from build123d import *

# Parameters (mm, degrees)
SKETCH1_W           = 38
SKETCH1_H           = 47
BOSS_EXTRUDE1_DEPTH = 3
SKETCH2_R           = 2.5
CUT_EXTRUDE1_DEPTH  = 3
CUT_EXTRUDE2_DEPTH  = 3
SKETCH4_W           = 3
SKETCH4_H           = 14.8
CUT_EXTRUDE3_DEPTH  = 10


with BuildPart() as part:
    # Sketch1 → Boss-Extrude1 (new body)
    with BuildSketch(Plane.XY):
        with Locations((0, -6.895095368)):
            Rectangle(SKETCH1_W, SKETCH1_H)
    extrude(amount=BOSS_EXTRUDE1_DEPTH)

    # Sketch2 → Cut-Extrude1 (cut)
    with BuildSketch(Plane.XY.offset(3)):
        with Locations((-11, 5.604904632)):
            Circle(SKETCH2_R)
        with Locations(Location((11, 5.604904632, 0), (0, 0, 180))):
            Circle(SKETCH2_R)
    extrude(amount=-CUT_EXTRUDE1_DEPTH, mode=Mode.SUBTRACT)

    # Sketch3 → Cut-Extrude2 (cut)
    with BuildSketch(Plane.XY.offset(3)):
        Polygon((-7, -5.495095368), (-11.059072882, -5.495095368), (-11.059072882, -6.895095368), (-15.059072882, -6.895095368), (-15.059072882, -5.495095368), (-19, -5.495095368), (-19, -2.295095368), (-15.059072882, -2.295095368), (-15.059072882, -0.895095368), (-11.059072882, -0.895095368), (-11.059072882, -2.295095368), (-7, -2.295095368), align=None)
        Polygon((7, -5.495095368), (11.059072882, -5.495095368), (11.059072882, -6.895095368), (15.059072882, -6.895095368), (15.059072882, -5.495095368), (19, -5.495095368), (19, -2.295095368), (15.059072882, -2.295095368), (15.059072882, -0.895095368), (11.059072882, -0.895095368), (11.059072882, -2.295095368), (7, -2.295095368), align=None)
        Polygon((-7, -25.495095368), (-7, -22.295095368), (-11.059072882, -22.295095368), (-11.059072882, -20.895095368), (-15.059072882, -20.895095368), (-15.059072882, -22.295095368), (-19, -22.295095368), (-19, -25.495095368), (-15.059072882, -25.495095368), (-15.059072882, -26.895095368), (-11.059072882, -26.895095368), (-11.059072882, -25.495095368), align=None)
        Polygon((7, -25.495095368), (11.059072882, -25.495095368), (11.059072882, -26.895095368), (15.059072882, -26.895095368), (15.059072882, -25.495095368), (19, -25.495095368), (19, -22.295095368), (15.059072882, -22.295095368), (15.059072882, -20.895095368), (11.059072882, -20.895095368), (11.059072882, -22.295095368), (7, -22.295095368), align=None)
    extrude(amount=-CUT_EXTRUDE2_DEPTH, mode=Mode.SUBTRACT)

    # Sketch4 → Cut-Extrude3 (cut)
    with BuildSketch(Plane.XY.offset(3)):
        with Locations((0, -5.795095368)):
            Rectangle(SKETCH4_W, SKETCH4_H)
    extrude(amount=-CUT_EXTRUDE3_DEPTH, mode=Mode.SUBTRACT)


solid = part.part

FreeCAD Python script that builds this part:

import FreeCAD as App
import Part
import Sketcher
from FreeCAD import Vector

doc = App.newDocument("Part")
body = doc.addObject("PartDesign::Body", "Body")

# Sketch on XY plane
sketch1 = doc.addObject("Sketcher::SketchObject", "Sketch")
body.addObject(sketch1)
sketch1.AttachmentSupport = (doc.XY_Plane, [""])
sketch1.MapMode = "FlatFace"
sketch1.addGeometry(Part.LineSegment(Vector(-19, 17, 0), Vector(-19, -30, 0)), False)
sketch1.addGeometry(Part.LineSegment(Vector(-19, -30, 0), Vector(19, -30, 0)), False)
sketch1.addGeometry(Part.LineSegment(Vector(19, -30, 0), Vector(19, 17, 0)), False)
sketch1.addGeometry(Part.LineSegment(Vector(19, 17, 0), Vector(-19, 17, 0)), False)
sketch1.addConstraint(Sketcher.Constraint("Coincident", 0, 2, 1, 1))
sketch1.addConstraint(Sketcher.Constraint("Coincident", 1, 2, 2, 1))
sketch1.addConstraint(Sketcher.Constraint("Coincident", 2, 2, 3, 1))
sketch1.addConstraint(Sketcher.Constraint("Coincident", 3, 2, 0, 1))
sketch1.addConstraint(Sketcher.Constraint("Vertical", 0))
sketch1.addConstraint(Sketcher.Constraint("Horizontal", 1))
sketch1.addConstraint(Sketcher.Constraint("Vertical", 2))
sketch1.addConstraint(Sketcher.Constraint("Horizontal", 3))
sketch1.addConstraint(Sketcher.Constraint("DistanceX", 1, 1, 1, 2, 38.0))
sketch1.addConstraint(Sketcher.Constraint("DistanceY", 0, 2, 0, 1, 47.0))
sketch1.addConstraint(Sketcher.Constraint("DistanceX", 0, 2, -1, 1, 19.0))
sketch1.addConstraint(Sketcher.Constraint("DistanceY", 0, 2, -1, 1, 30.395095))
pad1 = doc.addObject("PartDesign::Pad", "Pad")
body.addObject(pad1)
pad1.Profile = sketch1
pad1.Length = 3

# Sketch on XY plane
sketch2 = doc.addObject("Sketcher::SketchObject", "Sketch001")
body.addObject(sketch2)
sketch2.AttachmentSupport = (doc.XY_Plane, [""])
sketch2.MapMode = "FlatFace"
sketch2.AttachmentOffset = App.Placement(Vector(0, 0, 3), App.Rotation())
sketch2.addGeometry(Part.Circle(Vector(-11, 5.6, 0), Vector(0, 0, 1), 2.5), False)
sketch2.addGeometry(Part.Circle(Vector(11, 5.6, 0), Vector(0, 0, 1), 2.5), False)
sketch2.addConstraint(Sketcher.Constraint("Equal", 0, 1))
sketch2.addConstraint(Sketcher.Constraint("Symmetric", 0, 3, 1, 3, -2))
sketch2.addConstraint(Sketcher.Constraint("Diameter", 0, 5.0))
sketch2.addConstraint(Sketcher.Constraint("DistanceX", 0, 3, -1, 1, 11.0))
sketch2.addConstraint(Sketcher.Constraint("DistanceY", -1, 1, 0, 3, 5.604905))
pocket1 = doc.addObject("PartDesign::Pocket", "Pocket")
body.addObject(pocket1)
pocket1.Profile = sketch2
pocket1.Length = 3

# Sketch on XY plane
sketch3 = doc.addObject("Sketcher::SketchObject", "Sketch002")
body.addObject(sketch3)
sketch3.AttachmentSupport = (doc.XY_Plane, [""])
sketch3.MapMode = "FlatFace"
sketch3.AttachmentOffset = App.Placement(Vector(0, 0, 3), App.Rotation())
sketch3.addGeometry(Part.LineSegment(Vector(-11.1, -5.5, 0), Vector(-7, -5.5, 0)), False)
sketch3.addGeometry(Part.LineSegment(Vector(-7, -5.5, 0), Vector(-7, -2.3, 0)), False)
sketch3.addGeometry(Part.LineSegment(Vector(-7, -2.3, 0), Vector(-11.1, -2.3, 0)), False)
sketch3.addGeometry(Part.LineSegment(Vector(-11.1, -2.3, 0), Vector(-11.1, -0.9, 0)), False)
sketch3.addGeometry(Part.LineSegment(Vector(-11.1, -0.9, 0), Vector(-15.1, -0.9, 0)), False)
sketch3.addGeometry(Part.LineSegment(Vector(-15.1, -0.9, 0), Vector(-15.1, -2.3, 0)), False)
sketch3.addGeometry(Part.LineSegment(Vector(-15.1, -2.3, 0), Vector(-19, -2.3, 0)), False)
sketch3.addGeometry(Part.LineSegment(Vector(-19, -2.3, 0), Vector(-19, -5.5, 0)), False)
sketch3.addGeometry(Part.LineSegment(Vector(-19, -5.5, 0), Vector(-15.1, -5.5, 0)), False)
sketch3.addGeometry(Part.LineSegment(Vector(-15.1, -5.5, 0), Vector(-15.1, -6.9, 0)), False)
sketch3.addGeometry(Part.LineSegment(Vector(-15.1, -6.9, 0), Vector(-11.1, -6.9, 0)), False)
sketch3.addGeometry(Part.LineSegment(Vector(-11.1, -6.9, 0), Vector(-11.1, -5.5, 0)), False)
sketch3.addGeometry(Part.LineSegment(Vector(7, -5.5, 0), Vector(11.1, -5.5, 0)), False)
sketch3.addGeometry(Part.LineSegment(Vector(11.1, -5.5, 0), Vector(11.1, -6.9, 0)), False)
sketch3.addGeometry(Part.LineSegment(Vector(11.1, -6.9, 0), Vector(15.1, -6.9, 0)), False)
sketch3.addGeometry(Part.LineSegment(Vector(15.1, -6.9, 0), Vector(15.1, -5.5, 0)), False)
sketch3.addGeometry(Part.LineSegment(Vector(15.1, -5.5, 0), Vector(19, -5.5, 0)), False)
sketch3.addGeometry(Part.LineSegment(Vector(19, -5.5, 0), Vector(19, -2.3, 0)), False)
sketch3.addGeometry(Part.LineSegment(Vector(19, -2.3, 0), Vector(15.1, -2.3, 0)), False)
sketch3.addGeometry(Part.LineSegment(Vector(15.1, -2.3, 0), Vector(15.1, -0.9, 0)), False)
sketch3.addGeometry(Part.LineSegment(Vector(15.1, -0.9, 0), Vector(11.1, -0.9, 0)), False)
sketch3.addGeometry(Part.LineSegment(Vector(11.1, -0.9, 0), Vector(11.1, -2.3, 0)), False)
sketch3.addGeometry(Part.LineSegment(Vector(11.1, -2.3, 0), Vector(7, -2.3, 0)), False)
sketch3.addGeometry(Part.LineSegment(Vector(7, -2.3, 0), Vector(7, -5.5, 0)), False)
sketch3.addGeometry(Part.LineSegment(Vector(-7, -25.5, 0), Vector(-7, -22.3, 0)), False)
sketch3.addGeometry(Part.LineSegment(Vector(-7, -22.3, 0), Vector(-11.1, -22.3, 0)), False)
sketch3.addGeometry(Part.LineSegment(Vector(-11.1, -22.3, 0), Vector(-11.1, -20.9, 0)), False)
sketch3.addGeometry(Part.LineSegment(Vector(-11.1, -20.9, 0), Vector(-15.1, -20.9, 0)), False)
sketch3.addGeometry(Part.LineSegment(Vector(-15.1, -20.9, 0), Vector(-15.1, -22.3, 0)), False)
sketch3.addGeometry(Part.LineSegment(Vector(-15.1, -22.3, 0), Vector(-19, -22.3, 0)), False)
sketch3.addGeometry(Part.LineSegment(Vector(-19, -22.3, 0), Vector(-19, -25.5, 0)), False)
sketch3.addGeometry(Part.LineSegment(Vector(-19, -25.5, 0), Vector(-15.1, -25.5, 0)), False)
sketch3.addGeometry(Part.LineSegment(Vector(-15.1, -25.5, 0), Vector(-15.1, -26.9, 0)), False)
sketch3.addGeometry(Part.LineSegment(Vector(-15.1, -26.9, 0), Vector(-11.1, -26.9, 0)), False)
sketch3.addGeometry(Part.LineSegment(Vector(-11.1, -26.9, 0), Vector(-11.1, -25.5, 0)), False)
sketch3.addGeometry(Part.LineSegment(Vector(-11.1, -25.5, 0), Vector(-7, -25.5, 0)), False)
sketch3.addGeometry(Part.LineSegment(Vector(7, -25.5, 0), Vector(11.1, -25.5, 0)), False)
sketch3.addGeometry(Part.LineSegment(Vector(11.1, -25.5, 0), Vector(11.1, -26.9, 0)), False)
sketch3.addGeometry(Part.LineSegment(Vector(11.1, -26.9, 0), Vector(15.1, -26.9, 0)), False)
sketch3.addGeometry(Part.LineSegment(Vector(15.1, -26.9, 0), Vector(15.1, -25.5, 0)), False)
sketch3.addGeometry(Part.LineSegment(Vector(15.1, -25.5, 0), Vector(19, -25.5, 0)), False)
sketch3.addGeometry(Part.LineSegment(Vector(19, -25.5, 0), Vector(19, -22.3, 0)), False)
sketch3.addGeometry(Part.LineSegment(Vector(19, -22.3, 0), Vector(15.1, -22.3, 0)), False)
sketch3.addGeometry(Part.LineSegment(Vector(15.1, -22.3, 0), Vector(15.1, -20.9, 0)), False)
sketch3.addGeometry(Part.LineSegment(Vector(15.1, -20.9, 0), Vector(11.1, -20.9, 0)), False)
sketch3.addGeometry(Part.LineSegment(Vector(11.1, -20.9, 0), Vector(11.1, -22.3, 0)), False)
sketch3.addGeometry(Part.LineSegment(Vector(11.1, -22.3, 0), Vector(7, -22.3, 0)), False)
sketch3.addGeometry(Part.LineSegment(Vector(7, -22.3, 0), Vector(7, -25.5, 0)), False)
sketch3.addConstraint(Sketcher.Constraint("Coincident", 0, 2, 1, 1))
sketch3.addConstraint(Sketcher.Constraint("Coincident", 1, 2, 2, 1))
sketch3.addConstraint(Sketcher.Constraint("Coincident", 2, 2, 3, 1))
sketch3.addConstraint(Sketcher.Constraint("Coincident", 3, 2, 4, 1))
sketch3.addConstraint(Sketcher.Constraint("Coincident", 4, 2, 5, 1))
sketch3.addConstraint(Sketcher.Constraint("Coincident", 5, 2, 6, 1))
sketch3.addConstraint(Sketcher.Constraint("Coincident", 6, 2, 7, 1))
sketch3.addConstraint(Sketcher.Constraint("Coincident", 7, 2, 8, 1))
sketch3.addConstraint(Sketcher.Constraint("Coincident", 8, 2, 9, 1))
sketch3.addConstraint(Sketcher.Constraint("Coincident", 9, 2, 10, 1))
sketch3.addConstraint(Sketcher.Constraint("Coincident", 10, 2, 11, 1))
sketch3.addConstraint(Sketcher.Constraint("Coincident", 11, 2, 0, 1))
sketch3.addConstraint(Sketcher.Constraint("Coincident", 12, 2, 13, 1))
sketch3.addConstraint(Sketcher.Constraint("Coincident", 13, 2, 14, 1))
sketch3.addConstraint(Sketcher.Constraint("Coincident", 14, 2, 15, 1))
sketch3.addConstraint(Sketcher.Constraint("Coincident", 15, 2, 16, 1))
sketch3.addConstraint(Sketcher.Constraint("Coincident", 16, 2, 17, 1))
sketch3.addConstraint(Sketcher.Constraint("Coincident", 17, 2, 18, 1))
sketch3.addConstraint(Sketcher.Constraint("Coincident", 18, 2, 19, 1))
sketch3.addConstraint(Sketcher.Constraint("Coincident", 19, 2, 20, 1))
sketch3.addConstraint(Sketcher.Constraint("Coincident", 20, 2, 21, 1))
sketch3.addConstraint(Sketcher.Constraint("Coincident", 21, 2, 22, 1))
sketch3.addConstraint(Sketcher.Constraint("Coincident", 22, 2, 23, 1))
sketch3.addConstraint(Sketcher.Constraint("Coincident", 23, 2, 12, 1))
sketch3.addConstraint(Sketcher.Constraint("Coincident", 24, 2, 25, 1))
sketch3.addConstraint(Sketcher.Constraint("Coincident", 25, 2, 26, 1))
sketch3.addConstraint(Sketcher.Constraint("Coincident", 26, 2, 27, 1))
sketch3.addConstraint(Sketcher.Constraint("Coincident", 27, 2, 28, 1))
sketch3.addConstraint(Sketcher.Constraint("Coincident", 28, 2, 29, 1))
sketch3.addConstraint(Sketcher.Constraint("Coincident", 29, 2, 30, 1))
sketch3.addConstraint(Sketcher.Constraint("Coincident", 30, 2, 31, 1))
sketch3.addConstraint(Sketcher.Constraint("Coincident", 31, 2, 32, 1))
sketch3.addConstraint(Sketcher.Constraint("Coincident", 32, 2, 33, 1))
sketch3.addConstraint(Sketcher.Constraint("Coincident", 33, 2, 34, 1))
sketch3.addConstraint(Sketcher.Constraint("Coincident", 34, 2, 35, 1))
sketch3.addConstraint(Sketcher.Constraint("Coincident", 35, 2, 24, 1))
sketch3.addConstraint(Sketcher.Constraint("Coincident", 36, 2, 37, 1))
sketch3.addConstraint(Sketcher.Constraint("Coincident", 37, 2, 38, 1))
sketch3.addConstraint(Sketcher.Constraint("Coincident", 38, 2, 39, 1))
sketch3.addConstraint(Sketcher.Constraint("Coincident", 39, 2, 40, 1))
sketch3.addConstraint(Sketcher.Constraint("Coincident", 40, 2, 41, 1))
sketch3.addConstraint(Sketcher.Constraint("Coincident", 41, 2, 42, 1))
sketch3.addConstraint(Sketcher.Constraint("Coincident", 42, 2, 43, 1))
sketch3.addConstraint(Sketcher.Constraint("Coincident", 43, 2, 44, 1))
sketch3.addConstraint(Sketcher.Constraint("Coincident", 44, 2, 45, 1))
sketch3.addConstraint(Sketcher.Constraint("Coincident", 45, 2, 46, 1))
sketch3.addConstraint(Sketcher.Constraint("Coincident", 46, 2, 47, 1))
sketch3.addConstraint(Sketcher.Constraint("Coincident", 47, 2, 36, 1))
sketch3.addConstraint(Sketcher.Constraint("Horizontal", 0))
sketch3.addConstraint(Sketcher.Constraint("Vertical", 1))
sketch3.addConstraint(Sketcher.Constraint("Horizontal", 2))
sketch3.addConstraint(Sketcher.Constraint("Vertical", 3))
sketch3.addConstraint(Sketcher.Constraint("Horizontal", 4))
sketch3.addConstraint(Sketcher.Constraint("Vertical", 5))
sketch3.addConstraint(Sketcher.Constraint("Horizontal", 6))
sketch3.addConstraint(Sketcher.Constraint("Vertical", 7))
sketch3.addConstraint(Sketcher.Constraint("Horizontal", 8))
sketch3.addConstraint(Sketcher.Constraint("Vertical", 9))
sketch3.addConstraint(Sketcher.Constraint("Horizontal", 10))
sketch3.addConstraint(Sketcher.Constraint("Vertical", 11))
sketch3.addConstraint(Sketcher.Constraint("Horizontal", 12))
sketch3.addConstraint(Sketcher.Constraint("Vertical", 13))
sketch3.addConstraint(Sketcher.Constraint("Horizontal", 14))
sketch3.addConstraint(Sketcher.Constraint("Vertical", 15))
sketch3.addConstraint(Sketcher.Constraint("Horizontal", 16))
sketch3.addConstraint(Sketcher.Constraint("Vertical", 17))
sketch3.addConstraint(Sketcher.Constraint("Horizontal", 18))
sketch3.addConstraint(Sketcher.Constraint("Vertical", 19))
sketch3.addConstraint(Sketcher.Constraint("Horizontal", 20))
sketch3.addConstraint(Sketcher.Constraint("Vertical", 21))
sketch3.addConstraint(Sketcher.Constraint("Horizontal", 22))
sketch3.addConstraint(Sketcher.Constraint("Vertical", 23))
sketch3.addConstraint(Sketcher.Constraint("Vertical", 24))
sketch3.addConstraint(Sketcher.Constraint("Horizontal", 25))
sketch3.addConstraint(Sketcher.Constraint("Vertical", 26))
sketch3.addConstraint(Sketcher.Constraint("Horizontal", 27))
sketch3.addConstraint(Sketcher.Constraint("Vertical", 28))
sketch3.addConstraint(Sketcher.Constraint("Horizontal", 29))
sketch3.addConstraint(Sketcher.Constraint("Vertical", 30))
sketch3.addConstraint(Sketcher.Constraint("Horizontal", 31))
sketch3.addConstraint(Sketcher.Constraint("Vertical", 32))
sketch3.addConstraint(Sketcher.Constraint("Horizontal", 33))
sketch3.addConstraint(Sketcher.Constraint("Vertical", 34))
sketch3.addConstraint(Sketcher.Constraint("Horizontal", 35))
sketch3.addConstraint(Sketcher.Constraint("Horizontal", 36))
sketch3.addConstraint(Sketcher.Constraint("Vertical", 37))
sketch3.addConstraint(Sketcher.Constraint("Horizontal", 38))
sketch3.addConstraint(Sketcher.Constraint("Vertical", 39))
sketch3.addConstraint(Sketcher.Constraint("Horizontal", 40))
sketch3.addConstraint(Sketcher.Constraint("Vertical", 41))
sketch3.addConstraint(Sketcher.Constraint("Horizontal", 42))
sketch3.addConstraint(Sketcher.Constraint("Vertical", 43))
sketch3.addConstraint(Sketcher.Constraint("Horizontal", 44))
sketch3.addConstraint(Sketcher.Constraint("Vertical", 45))
sketch3.addConstraint(Sketcher.Constraint("Horizontal", 46))
sketch3.addConstraint(Sketcher.Constraint("Vertical", 47))
sketch3.addConstraint(Sketcher.Constraint("Symmetric", 11, 2, 12, 2, -2))
sketch3.addConstraint(Sketcher.Constraint("Symmetric", 9, 2, 14, 2, -2))
sketch3.addConstraint(Sketcher.Constraint("Symmetric", 7, 2, 16, 2, -2))
sketch3.addConstraint(Sketcher.Constraint("Symmetric", 5, 2, 18, 2, -2))
sketch3.addConstraint(Sketcher.Constraint("Symmetric", 3, 2, 20, 2, -2))
sketch3.addConstraint(Sketcher.Constraint("Symmetric", 1, 2, 22, 2, -2))
sketch3.addConstraint(Sketcher.Constraint("Symmetric", 34, 2, 36, 2, -2))
sketch3.addConstraint(Sketcher.Constraint("Symmetric", 32, 2, 38, 2, -2))
sketch3.addConstraint(Sketcher.Constraint("Symmetric", 30, 2, 40, 2, -2))
sketch3.addConstraint(Sketcher.Constraint("Symmetric", 28, 2, 42, 2, -2))
sketch3.addConstraint(Sketcher.Constraint("Symmetric", 26, 2, 44, 2, -2))
sketch3.addConstraint(Sketcher.Constraint("Symmetric", 24, 2, 46, 2, -2))
sketch3.addConstraint(Sketcher.Constraint("Horizontal", 2, 2, 5, 2))
sketch3.addConstraint(Sketcher.Constraint("Horizontal", 0, 2, 7, 2))
sketch3.addConstraint(Sketcher.Constraint("Horizontal", 25, 2, 28, 2))
sketch3.addConstraint(Sketcher.Constraint("Horizontal", 31, 2, 34, 2))
sketch3.addConstraint(Sketcher.Constraint("Vertical", 5, 2, 8, 2))
sketch3.addConstraint(Sketcher.Constraint("Vertical", 3, 2, 10, 2))
sketch3.addConstraint(Sketcher.Constraint("Vertical", 1, 2, 24, 2))
sketch3.addConstraint(Sketcher.Constraint("Vertical", 11, 2, 25, 2))
sketch3.addConstraint(Sketcher.Constraint("Vertical", 9, 2, 27, 2))
sketch3.addConstraint(Sketcher.Constraint("Vertical", 7, 2, 29, 2))
sketch3.addConstraint(Sketcher.Constraint("Vertical", 28, 2, 31, 2))
sketch3.addConstraint(Sketcher.Constraint("Vertical", 26, 2, 33, 2))
sketch3.addConstraint(Sketcher.Constraint("Equal", 5, 9))
sketch3.addConstraint(Sketcher.Constraint("Equal", 23, 24))
sketch3.addConstraint(Sketcher.Constraint("Equal", 21, 26))
sketch3.addConstraint(Sketcher.Constraint("Equal", 28, 32))
sketch3.addConstraint(Sketcher.Constraint("DistanceX", 4, 2, 4, 1, 4.0))
sketch3.addConstraint(Sketcher.Constraint("DistanceY", 1, 1, 1, 2, 3.2))
sketch3.addConstraint(Sketcher.Constraint("DistanceY", 3, 1, 3, 2, 1.4))
sketch3.addConstraint(Sketcher.Constraint("DistanceX", 0, 2, -1, 1, 7.0))
sketch3.addConstraint(Sketcher.Constraint("DistanceX", 6, 2, -1, 1, 19.0))
sketch3.addConstraint(Sketcher.Constraint("DistanceY", 26, 2, 10, 2, 14.0))
sketch3.addConstraint(Sketcher.Constraint("DistanceX", 0, 1, 0, 2, 4.059073))
sketch3.addConstraint(Sketcher.Constraint("DistanceY", 0, 2, -1, 1, 5.495095))
pocket2 = doc.addObject("PartDesign::Pocket", "Pocket001")
body.addObject(pocket2)
pocket2.Profile = sketch3
pocket2.Length = 3

# Sketch on XY plane
sketch4 = doc.addObject("Sketcher::SketchObject", "Sketch003")
body.addObject(sketch4)
sketch4.AttachmentSupport = (doc.XY_Plane, [""])
sketch4.MapMode = "FlatFace"
sketch4.AttachmentOffset = App.Placement(Vector(0, 0, 3), App.Rotation())
sketch4.addGeometry(Part.LineSegment(Vector(-1.5, 1.6, 0), Vector(-1.5, -13.2, 0)), False)
sketch4.addGeometry(Part.LineSegment(Vector(-1.5, -13.2, 0), Vector(1.5, -13.2, 0)), False)
sketch4.addGeometry(Part.LineSegment(Vector(1.5, -13.2, 0), Vector(1.5, 1.6, 0)), False)
sketch4.addGeometry(Part.LineSegment(Vector(1.5, 1.6, 0), Vector(-1.5, 1.6, 0)), False)
sketch4.addConstraint(Sketcher.Constraint("Coincident", 0, 2, 1, 1))
sketch4.addConstraint(Sketcher.Constraint("Coincident", 1, 2, 2, 1))
sketch4.addConstraint(Sketcher.Constraint("Coincident", 2, 2, 3, 1))
sketch4.addConstraint(Sketcher.Constraint("Coincident", 3, 2, 0, 1))
sketch4.addConstraint(Sketcher.Constraint("Vertical", 0))
sketch4.addConstraint(Sketcher.Constraint("Horizontal", 1))
sketch4.addConstraint(Sketcher.Constraint("Vertical", 2))
sketch4.addConstraint(Sketcher.Constraint("Horizontal", 3))
sketch4.addConstraint(Sketcher.Constraint("DistanceX", 1, 1, 1, 2, 3.0))
sketch4.addConstraint(Sketcher.Constraint("DistanceY", 0, 2, 0, 1, 14.8))
sketch4.addConstraint(Sketcher.Constraint("DistanceX", 0, 2, -1, 1, 1.5))
sketch4.addConstraint(Sketcher.Constraint("DistanceY", 0, 2, -1, 1, 13.195095))
pocket3 = doc.addObject("PartDesign::Pocket", "Pocket002")
body.addObject(pocket3)
pocket3.Profile = sketch4
pocket3.Length = 10

doc.recompute()
